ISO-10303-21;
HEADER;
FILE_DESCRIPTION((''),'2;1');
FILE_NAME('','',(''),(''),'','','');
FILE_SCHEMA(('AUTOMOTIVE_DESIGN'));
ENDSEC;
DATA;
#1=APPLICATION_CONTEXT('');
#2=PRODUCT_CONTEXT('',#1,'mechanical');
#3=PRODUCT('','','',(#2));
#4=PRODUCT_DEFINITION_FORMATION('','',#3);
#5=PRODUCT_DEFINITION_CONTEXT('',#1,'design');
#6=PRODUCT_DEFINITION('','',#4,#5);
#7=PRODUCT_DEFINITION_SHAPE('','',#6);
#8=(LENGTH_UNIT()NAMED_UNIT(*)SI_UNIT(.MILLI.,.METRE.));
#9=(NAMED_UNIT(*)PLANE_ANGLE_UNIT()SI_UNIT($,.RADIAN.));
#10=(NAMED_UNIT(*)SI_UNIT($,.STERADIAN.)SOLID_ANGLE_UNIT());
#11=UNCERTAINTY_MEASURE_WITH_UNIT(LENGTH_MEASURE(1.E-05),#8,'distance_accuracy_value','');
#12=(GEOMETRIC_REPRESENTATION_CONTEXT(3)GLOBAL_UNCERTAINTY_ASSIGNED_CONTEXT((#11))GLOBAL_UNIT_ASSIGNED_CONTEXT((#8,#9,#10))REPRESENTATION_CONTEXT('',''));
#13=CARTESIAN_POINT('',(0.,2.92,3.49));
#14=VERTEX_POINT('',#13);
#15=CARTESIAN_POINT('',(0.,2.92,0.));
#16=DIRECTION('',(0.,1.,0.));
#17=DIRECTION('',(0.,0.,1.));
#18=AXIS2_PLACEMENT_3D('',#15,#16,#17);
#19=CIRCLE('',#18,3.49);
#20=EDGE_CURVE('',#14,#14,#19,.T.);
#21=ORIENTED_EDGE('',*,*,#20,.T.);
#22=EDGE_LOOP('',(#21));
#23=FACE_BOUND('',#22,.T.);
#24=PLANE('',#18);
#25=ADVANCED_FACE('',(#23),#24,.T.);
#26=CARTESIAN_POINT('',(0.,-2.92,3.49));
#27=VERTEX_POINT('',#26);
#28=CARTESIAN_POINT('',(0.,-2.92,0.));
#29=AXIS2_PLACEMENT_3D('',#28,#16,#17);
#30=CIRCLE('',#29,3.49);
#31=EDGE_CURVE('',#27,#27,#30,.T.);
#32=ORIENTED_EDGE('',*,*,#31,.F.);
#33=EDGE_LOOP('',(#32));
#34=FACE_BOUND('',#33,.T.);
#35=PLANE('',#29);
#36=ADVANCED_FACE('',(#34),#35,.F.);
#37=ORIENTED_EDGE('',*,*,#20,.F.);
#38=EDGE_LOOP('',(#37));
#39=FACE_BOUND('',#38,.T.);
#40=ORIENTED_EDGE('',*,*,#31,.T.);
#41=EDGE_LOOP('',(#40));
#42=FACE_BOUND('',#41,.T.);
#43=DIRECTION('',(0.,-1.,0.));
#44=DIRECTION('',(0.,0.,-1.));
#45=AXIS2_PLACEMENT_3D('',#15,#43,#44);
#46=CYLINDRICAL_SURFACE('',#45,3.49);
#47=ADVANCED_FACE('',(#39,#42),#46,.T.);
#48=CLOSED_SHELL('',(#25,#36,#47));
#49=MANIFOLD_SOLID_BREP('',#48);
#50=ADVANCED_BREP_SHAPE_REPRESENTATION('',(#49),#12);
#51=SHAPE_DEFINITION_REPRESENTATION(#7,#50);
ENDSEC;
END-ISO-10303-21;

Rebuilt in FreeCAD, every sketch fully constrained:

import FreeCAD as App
import Part
import Sketcher

V = App.Vector

doc = App.newDocument("Part")
body = doc.addObject("PartDesign::Body", "Body")

sketch1 = doc.addObject("Sketcher::SketchObject", "Sketch")
body.addObject(sketch1)
sketch1.AttachmentSupport = (doc.XZ_Plane, [""])
sketch1.MapMode = "FlatFace"
sketch1.addGeometry(Part.Circle(V(0, 0, 0), V(0, 0, 1), 3.5), False)
sketch1.addConstraint(Sketcher.Constraint("Coincident", 0, 3, -1, 1))
sketch1.addConstraint(Sketcher.Constraint("Diameter", 0, 6.98))
pad1 = doc.addObject("PartDesign::Pad", "Pad")
body.addObject(pad1)
pad1.Profile = sketch1
pad1.Length = 5.84
pad1.Midplane = True

doc.recompute()
